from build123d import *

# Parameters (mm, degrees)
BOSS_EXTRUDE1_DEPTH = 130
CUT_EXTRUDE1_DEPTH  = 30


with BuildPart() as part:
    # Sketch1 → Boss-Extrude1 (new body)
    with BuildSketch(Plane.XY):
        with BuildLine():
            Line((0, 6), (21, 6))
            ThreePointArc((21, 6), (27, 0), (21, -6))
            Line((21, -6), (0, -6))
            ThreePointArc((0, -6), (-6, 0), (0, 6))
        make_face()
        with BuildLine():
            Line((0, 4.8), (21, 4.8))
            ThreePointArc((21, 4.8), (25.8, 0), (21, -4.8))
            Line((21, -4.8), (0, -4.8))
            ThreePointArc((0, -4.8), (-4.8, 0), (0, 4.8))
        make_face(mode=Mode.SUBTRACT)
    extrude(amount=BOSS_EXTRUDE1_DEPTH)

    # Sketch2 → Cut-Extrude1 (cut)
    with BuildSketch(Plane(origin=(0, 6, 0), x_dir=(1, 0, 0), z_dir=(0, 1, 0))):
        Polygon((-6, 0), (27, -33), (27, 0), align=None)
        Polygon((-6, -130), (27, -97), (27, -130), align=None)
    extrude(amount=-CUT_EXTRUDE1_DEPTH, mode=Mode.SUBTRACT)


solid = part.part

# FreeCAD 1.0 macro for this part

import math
import FreeCAD as App
import Part
import Sketcher
from FreeCAD import Vector
Q = App.Units.Quantity

doc = App.newDocument("Part")
body = doc.addObject("PartDesign::Body", "Body")

sketch1 = body.newObject("Sketcher::SketchObject", "Sketch")
sketch1.AttachmentSupport = (doc.getObject("XY_Plane"), [""])
sketch1.MapMode = "FlatFace"
sketch1.addGeometry(Part.LineSegment(Vector(21, 6, 0), Vector(0, 6, 0)), False)
sketch1.addGeometry(Part.ArcOfCircle(Part.Circle(Vector(0, 0, 0), Vector(0, 0, 1), 6), math.radians(90), math.radians(270)), False)
sketch1.addGeometry(Part.LineSegment(Vector(0, -6, 0), Vector(21, -6, 0)), False)
sketch1.addGeometry(Part.ArcOfCircle(Part.Circle(Vector(21, 0, 0), Vector(0, 0, 1), 6), math.radians(-90), math.radians(90)), False)
sketch1.addGeometry(Part.LineSegment(Vector(0, 4.8, 0), Vector(21, 4.8, 0)), False)
sketch1.addGeometry(Part.ArcOfCircle(Part.Circle(Vector(21, 0, 0), Vector(0, 0, 1), 4.8), math.radians(-90), math.radians(90)), False)
sketch1.addGeometry(Part.LineSegment(Vector(21, -4.8, 0), Vector(0, -4.8, 0)), False)
sketch1.addGeometry(Part.ArcOfCircle(Part.Circle(Vector(0, 0, 0), Vector(0, 0, 1), 4.8), math.radians(90), math.radians(270)), False)
sketch1.addConstraint(Sketcher.Constraint("Tangent", 0, 2, 1, 1))
sketch1.addConstraint(Sketcher.Constraint("Tangent", 1, 2, 2, 1))
sketch1.addConstraint(Sketcher.Constraint("Tangent", 2, 2, 3, 1))
sketch1.addConstraint(Sketcher.Constraint("Tangent", 3, 2, 0, 1))
sketch1.addConstraint(Sketcher.Constraint("Tangent", 4, 2, 5, 2))
sketch1.addConstraint(Sketcher.Constraint("Tangent", 5, 1, 6, 1))
sketch1.addConstraint(Sketcher.Constraint("Tangent", 6, 2, 7, 2))
sketch1.addConstraint(Sketcher.Constraint("Tangent", 7, 1, 4, 1))
sketch1.addConstraint(Sketcher.Constraint("Horizontal", 0))
sketch1.addConstraint(Sketcher.Constraint("Horizontal", 2))
sketch1.addConstraint(Sketcher.Constraint("Horizontal", 4))
sketch1.addConstraint(Sketcher.Constraint("Horizontal", 6))
sketch1.addConstraint(Sketcher.Constraint("Coincident", 1, 3, -1, 1))
sketch1.addConstraint(Sketcher.Constraint("Coincident", 7, 3, -1, 1))
sketch1.addConstraint(Sketcher.Constraint("Vertical", 5, 3, 2, 2))
sketch1.addConstraint(Sketcher.Constraint("Radius", 1, Q("6 mm")))
sketch1.addConstraint(Sketcher.Constraint("Radius", 5, Q("4.8 mm")))
sketch1.addConstraint(Sketcher.Constraint("DistanceX", 0, 2, 0, 1, Q("21 mm")))
pad1 = body.newObject("PartDesign::Pad", "Pad")
pad1.Profile = sketch1
pad1.Length = 130

sketch2 = body.newObject("Sketcher::SketchObject", "Sketch001")
sketch2.AttachmentSupport = (doc.getObject("XZ_Plane"), [""])
sketch2.MapMode = "FlatFace"
sketch2.AttachmentOffset = App.Placement(Vector(0, 0, -6), App.Rotation())
sketch2.addGeometry(Part.LineSegment(Vector(-6, 0, 0), Vector(27, 33, 0)), False)
sketch2.addGeometry(Part.LineSegment(Vector(27, 33, 0), Vector(27, 0, 0)), False)
sketch2.addGeometry(Part.LineSegment(Vector(27, 0, 0), Vector(-6, 0, 0)), False)
sketch2.addGeometry(Part.LineSegment(Vector(27, 97, 0), Vector(-6, 130, 0)), False)
sketch2.addGeometry(Part.LineSegment(Vector(-6, 130, 0), Vector(27, 130, 0)), False)
sketch2.addGeometry(Part.LineSegment(Vector(27, 130, 0), Vector(27, 97, 0)), False)
sketch2.addConstraint(Sketcher.Constraint("Coincident", 0, 2, 1, 1))
sketch2.addConstraint(Sketcher.Constraint("Coincident", 1, 2, 2, 1))
sketch2.addConstraint(Sketcher.Constraint("Coincident", 2, 2, 0, 1))
sketch2.addConstraint(Sketcher.Constraint("Coincident", 3, 2, 4, 1))
sketch2.addConstraint(Sketcher.Constraint("Coincident", 4, 2, 5, 1))
sketch2.addConstraint(Sketcher.Constraint("Coincident", 5, 2, 3, 1))
sketch2.addConstraint(Sketcher.Constraint("Vertical", 1))
sketch2.addConstraint(Sketcher.Constraint("Horizontal", 2))
sketch2.addConstraint(Sketcher.Constraint("Horizontal", 4))
sketch2.addConstraint(Sketcher.Constraint("Vertical", 5))
sketch2.addConstraint(Sketcher.Constraint("PointOnObject", 1, 2, -1))
sketch2.addConstraint(Sketcher.Constraint("Perpendicular", 0, 3))
sketch2.addConstraint(Sketcher.Constraint("Vertical", 2, 2, 3, 2))
sketch2.addConstraint(Sketcher.Constraint("Vertical", 1, 2, 4, 2))
sketch2.addConstraint(Sketcher.Constraint("Equal", 4, 1))
sketch2.addConstraint(Sketcher.Constraint("DistanceX", 2, 2, 2, 1, Q("33 mm")))
sketch2.addConstraint(Sketcher.Constraint("DistanceX", -1, 1, 0, 2, Q("27 mm")))
sketch2.addConstraint(Sketcher.Constraint("DistanceY", -1, 1, 3, 2, Q("130 mm")))
pocket1 = body.newObject("PartDesign::Pocket", "Pocket")
pocket1.Profile = sketch2
pocket1.Length = 30
pocket1.Reversed = True

doc.recompute()
